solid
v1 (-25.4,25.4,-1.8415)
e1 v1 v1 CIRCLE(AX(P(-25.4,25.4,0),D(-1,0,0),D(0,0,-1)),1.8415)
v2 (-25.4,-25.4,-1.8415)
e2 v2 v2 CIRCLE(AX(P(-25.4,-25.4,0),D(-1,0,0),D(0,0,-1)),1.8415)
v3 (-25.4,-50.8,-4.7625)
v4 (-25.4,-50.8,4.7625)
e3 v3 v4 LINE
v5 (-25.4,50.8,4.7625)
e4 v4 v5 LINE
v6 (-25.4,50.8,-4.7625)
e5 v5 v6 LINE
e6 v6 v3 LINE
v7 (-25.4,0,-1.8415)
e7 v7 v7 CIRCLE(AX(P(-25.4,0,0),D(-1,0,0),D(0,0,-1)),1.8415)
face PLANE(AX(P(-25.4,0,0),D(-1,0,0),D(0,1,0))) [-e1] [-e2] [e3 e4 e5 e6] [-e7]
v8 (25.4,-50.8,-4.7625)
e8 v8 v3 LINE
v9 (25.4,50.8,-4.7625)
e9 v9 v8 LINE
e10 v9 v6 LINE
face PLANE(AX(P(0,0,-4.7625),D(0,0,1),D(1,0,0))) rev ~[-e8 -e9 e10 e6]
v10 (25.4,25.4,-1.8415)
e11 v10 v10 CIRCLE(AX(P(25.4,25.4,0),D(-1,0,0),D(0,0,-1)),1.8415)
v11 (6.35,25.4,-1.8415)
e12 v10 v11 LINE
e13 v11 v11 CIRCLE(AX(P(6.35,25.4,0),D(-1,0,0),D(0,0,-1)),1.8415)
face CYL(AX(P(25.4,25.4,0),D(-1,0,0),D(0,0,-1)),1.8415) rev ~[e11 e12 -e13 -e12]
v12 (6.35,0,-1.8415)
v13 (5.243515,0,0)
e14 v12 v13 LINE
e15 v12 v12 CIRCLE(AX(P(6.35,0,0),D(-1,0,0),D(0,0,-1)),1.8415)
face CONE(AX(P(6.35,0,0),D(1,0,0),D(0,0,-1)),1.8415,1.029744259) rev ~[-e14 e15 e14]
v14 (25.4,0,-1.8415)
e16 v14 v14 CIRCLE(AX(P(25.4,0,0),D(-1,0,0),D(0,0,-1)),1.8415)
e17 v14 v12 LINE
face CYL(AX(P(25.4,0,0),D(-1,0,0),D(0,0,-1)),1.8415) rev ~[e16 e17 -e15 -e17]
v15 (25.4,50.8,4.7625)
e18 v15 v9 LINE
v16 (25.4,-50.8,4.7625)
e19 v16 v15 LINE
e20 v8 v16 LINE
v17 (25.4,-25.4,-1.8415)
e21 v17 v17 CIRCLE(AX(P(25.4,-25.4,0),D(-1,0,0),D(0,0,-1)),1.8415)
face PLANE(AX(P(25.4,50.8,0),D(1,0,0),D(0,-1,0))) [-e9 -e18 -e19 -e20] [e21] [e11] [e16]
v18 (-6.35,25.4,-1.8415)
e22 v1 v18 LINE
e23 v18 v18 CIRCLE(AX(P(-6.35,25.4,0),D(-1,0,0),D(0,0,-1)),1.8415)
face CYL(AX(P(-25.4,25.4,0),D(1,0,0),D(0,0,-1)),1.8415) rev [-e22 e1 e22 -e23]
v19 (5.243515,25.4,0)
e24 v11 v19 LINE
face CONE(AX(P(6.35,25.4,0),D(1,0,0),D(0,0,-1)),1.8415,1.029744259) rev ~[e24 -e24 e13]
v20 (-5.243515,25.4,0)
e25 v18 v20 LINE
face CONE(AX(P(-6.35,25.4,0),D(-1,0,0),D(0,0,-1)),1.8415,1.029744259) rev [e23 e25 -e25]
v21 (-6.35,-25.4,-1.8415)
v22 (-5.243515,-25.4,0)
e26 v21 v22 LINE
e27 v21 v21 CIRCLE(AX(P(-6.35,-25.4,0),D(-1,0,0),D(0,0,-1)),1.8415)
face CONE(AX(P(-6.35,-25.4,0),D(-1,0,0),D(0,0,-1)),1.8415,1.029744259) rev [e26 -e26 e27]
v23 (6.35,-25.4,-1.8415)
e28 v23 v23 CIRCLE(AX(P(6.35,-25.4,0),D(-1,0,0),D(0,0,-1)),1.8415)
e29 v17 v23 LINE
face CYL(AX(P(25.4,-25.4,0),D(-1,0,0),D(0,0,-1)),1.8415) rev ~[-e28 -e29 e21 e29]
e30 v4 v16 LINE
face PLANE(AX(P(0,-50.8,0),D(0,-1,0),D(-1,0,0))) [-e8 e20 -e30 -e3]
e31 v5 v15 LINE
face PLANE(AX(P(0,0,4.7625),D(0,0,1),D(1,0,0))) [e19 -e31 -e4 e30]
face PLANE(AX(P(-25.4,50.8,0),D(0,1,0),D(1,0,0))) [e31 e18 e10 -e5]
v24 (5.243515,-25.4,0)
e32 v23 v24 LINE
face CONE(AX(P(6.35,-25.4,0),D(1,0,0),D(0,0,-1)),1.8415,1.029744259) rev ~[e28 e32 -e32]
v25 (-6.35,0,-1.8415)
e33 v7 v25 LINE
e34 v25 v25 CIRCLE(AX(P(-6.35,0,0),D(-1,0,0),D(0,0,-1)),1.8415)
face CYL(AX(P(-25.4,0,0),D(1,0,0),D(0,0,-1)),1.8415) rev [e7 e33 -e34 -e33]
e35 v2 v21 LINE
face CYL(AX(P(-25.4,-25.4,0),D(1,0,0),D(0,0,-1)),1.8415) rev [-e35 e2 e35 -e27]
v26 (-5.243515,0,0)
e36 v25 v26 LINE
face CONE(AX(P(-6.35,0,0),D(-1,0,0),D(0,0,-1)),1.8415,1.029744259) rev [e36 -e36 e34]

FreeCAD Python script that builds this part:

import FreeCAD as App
import Part
import Sketcher
from FreeCAD import Vector
Q = App.Units.Quantity

doc = App.newDocument("Part")
body = doc.addObject("PartDesign::Body", "Body")

# Sketch on XY plane
sketch1 = body.newObject("Sketcher::SketchObject", "Sketch")
sketch1.AttachmentSupport = (doc.getObject("XY_Plane"), [""])
sketch1.MapMode = "FlatFace"
sketch1.addGeometry(Part.LineSegment(Vector(-25, 51, 0), Vector(-25, -51, 0)), False)
sketch1.addGeometry(Part.LineSegment(Vector(-25, -51, 0), Vector(25, -51, 0)), False)
sketch1.addGeometry(Part.LineSegment(Vector(25, -51, 0), Vector(25, 51, 0)), False)
sketch1.addGeometry(Part.LineSegment(Vector(25, 51, 0), Vector(-25, 51, 0)), False)
sketch1.addConstraint(Sketcher.Constraint("Coincident", 0, 2, 1, 1))
sketch1.addConstraint(Sketcher.Constraint("Coincident", 1, 2, 2, 1))
sketch1.addConstraint(Sketcher.Constraint("Coincident", 2, 2, 3, 1))
sketch1.addConstraint(Sketcher.Constraint("Coincident", 3, 2, 0, 1))
sketch1.addConstraint(Sketcher.Constraint("Vertical", 0))
sketch1.addConstraint(Sketcher.Constraint("Horizontal", 1))
sketch1.addConstraint(Sketcher.Constraint("Vertical", 2))
sketch1.addConstraint(Sketcher.Constraint("Horizontal", 3))
sketch1.addConstraint(Sketcher.Constraint("Symmetric", 0, 2, 2, 2, -1, 1))
sketch1.addConstraint(Sketcher.Constraint("DistanceX", 1, 1, 1, 2, Q("2 in")))
sketch1.addConstraint(Sketcher.Constraint("DistanceY", 0, 2, 0, 1, Q("4 in")))
pad1 = body.newObject("PartDesign::Pad", "Pad")
pad1.Profile = sketch1
pad1.Length = Q("0.375 in")
pad1.Midplane = True

# Sketch on YZ plane
sketch2 = body.newObject("Sketcher::SketchObject", "Sketch001")
sketch2.AttachmentSupport = (doc.getObject("YZ_Plane"), [""])
sketch2.MapMode = "FlatFace"
sketch2.AttachmentOffset = App.Placement(Vector(0, 0, 1 * 25.4), App.Rotation())
sketch2.addGeometry(Part.Circle(Vector(25.4, 0, 0), Vector(0, 0, 1), 1.8), False)
sketch2.addGeometry(Part.Circle(Vector(0, 0, 0), Vector(0, 0, 1), 1.8), False)
sketch2.addGeometry(Part.Circle(Vector(-25.4, 0, 0), Vector(0, 0, 1), 1.8), False)
sketch2.addConstraint(Sketcher.Constraint("Coincident", 1, 3, -1, 1))
sketch2.addConstraint(Sketcher.Constraint("Equal", 0, 1))
sketch2.addConstraint(Sketcher.Constraint("Equal", 1, 2))
sketch2.addConstraint(Sketcher.Constraint("Symmetric", 0, 3, 2, 3, -1, 1))
sketch2.addConstraint(Sketcher.Constraint("PointOnObject", 0, 3, -1))
sketch2.addConstraint(Sketcher.Constraint("Diameter", 0, Q("0.145 in")))
sketch2.addConstraint(Sketcher.Constraint("DistanceX", -1, 1, 0, 3, Q("1 in")))
doc.recompute()
hole = body.newObject("PartDesign::Hole", "Hole")
hole.Profile = sketch2
hole.ThreadType = "None"
hole.Diameter = Q("0.145 in")
hole.DepthType = "Dimension"
hole.Depth = Q("0.75 in")
hole.DrillPoint = "Angled"
hole.DrillPointAngle = 118
doc.recompute()

mirrored = body.newObject("PartDesign::Mirrored", "Mirrored")
mirrored.Originals = [hole]
mirrored.MirrorPlane = (doc.getObject("YZ_Plane"), [""])
body.Tip = mirrored

doc.recompute()
